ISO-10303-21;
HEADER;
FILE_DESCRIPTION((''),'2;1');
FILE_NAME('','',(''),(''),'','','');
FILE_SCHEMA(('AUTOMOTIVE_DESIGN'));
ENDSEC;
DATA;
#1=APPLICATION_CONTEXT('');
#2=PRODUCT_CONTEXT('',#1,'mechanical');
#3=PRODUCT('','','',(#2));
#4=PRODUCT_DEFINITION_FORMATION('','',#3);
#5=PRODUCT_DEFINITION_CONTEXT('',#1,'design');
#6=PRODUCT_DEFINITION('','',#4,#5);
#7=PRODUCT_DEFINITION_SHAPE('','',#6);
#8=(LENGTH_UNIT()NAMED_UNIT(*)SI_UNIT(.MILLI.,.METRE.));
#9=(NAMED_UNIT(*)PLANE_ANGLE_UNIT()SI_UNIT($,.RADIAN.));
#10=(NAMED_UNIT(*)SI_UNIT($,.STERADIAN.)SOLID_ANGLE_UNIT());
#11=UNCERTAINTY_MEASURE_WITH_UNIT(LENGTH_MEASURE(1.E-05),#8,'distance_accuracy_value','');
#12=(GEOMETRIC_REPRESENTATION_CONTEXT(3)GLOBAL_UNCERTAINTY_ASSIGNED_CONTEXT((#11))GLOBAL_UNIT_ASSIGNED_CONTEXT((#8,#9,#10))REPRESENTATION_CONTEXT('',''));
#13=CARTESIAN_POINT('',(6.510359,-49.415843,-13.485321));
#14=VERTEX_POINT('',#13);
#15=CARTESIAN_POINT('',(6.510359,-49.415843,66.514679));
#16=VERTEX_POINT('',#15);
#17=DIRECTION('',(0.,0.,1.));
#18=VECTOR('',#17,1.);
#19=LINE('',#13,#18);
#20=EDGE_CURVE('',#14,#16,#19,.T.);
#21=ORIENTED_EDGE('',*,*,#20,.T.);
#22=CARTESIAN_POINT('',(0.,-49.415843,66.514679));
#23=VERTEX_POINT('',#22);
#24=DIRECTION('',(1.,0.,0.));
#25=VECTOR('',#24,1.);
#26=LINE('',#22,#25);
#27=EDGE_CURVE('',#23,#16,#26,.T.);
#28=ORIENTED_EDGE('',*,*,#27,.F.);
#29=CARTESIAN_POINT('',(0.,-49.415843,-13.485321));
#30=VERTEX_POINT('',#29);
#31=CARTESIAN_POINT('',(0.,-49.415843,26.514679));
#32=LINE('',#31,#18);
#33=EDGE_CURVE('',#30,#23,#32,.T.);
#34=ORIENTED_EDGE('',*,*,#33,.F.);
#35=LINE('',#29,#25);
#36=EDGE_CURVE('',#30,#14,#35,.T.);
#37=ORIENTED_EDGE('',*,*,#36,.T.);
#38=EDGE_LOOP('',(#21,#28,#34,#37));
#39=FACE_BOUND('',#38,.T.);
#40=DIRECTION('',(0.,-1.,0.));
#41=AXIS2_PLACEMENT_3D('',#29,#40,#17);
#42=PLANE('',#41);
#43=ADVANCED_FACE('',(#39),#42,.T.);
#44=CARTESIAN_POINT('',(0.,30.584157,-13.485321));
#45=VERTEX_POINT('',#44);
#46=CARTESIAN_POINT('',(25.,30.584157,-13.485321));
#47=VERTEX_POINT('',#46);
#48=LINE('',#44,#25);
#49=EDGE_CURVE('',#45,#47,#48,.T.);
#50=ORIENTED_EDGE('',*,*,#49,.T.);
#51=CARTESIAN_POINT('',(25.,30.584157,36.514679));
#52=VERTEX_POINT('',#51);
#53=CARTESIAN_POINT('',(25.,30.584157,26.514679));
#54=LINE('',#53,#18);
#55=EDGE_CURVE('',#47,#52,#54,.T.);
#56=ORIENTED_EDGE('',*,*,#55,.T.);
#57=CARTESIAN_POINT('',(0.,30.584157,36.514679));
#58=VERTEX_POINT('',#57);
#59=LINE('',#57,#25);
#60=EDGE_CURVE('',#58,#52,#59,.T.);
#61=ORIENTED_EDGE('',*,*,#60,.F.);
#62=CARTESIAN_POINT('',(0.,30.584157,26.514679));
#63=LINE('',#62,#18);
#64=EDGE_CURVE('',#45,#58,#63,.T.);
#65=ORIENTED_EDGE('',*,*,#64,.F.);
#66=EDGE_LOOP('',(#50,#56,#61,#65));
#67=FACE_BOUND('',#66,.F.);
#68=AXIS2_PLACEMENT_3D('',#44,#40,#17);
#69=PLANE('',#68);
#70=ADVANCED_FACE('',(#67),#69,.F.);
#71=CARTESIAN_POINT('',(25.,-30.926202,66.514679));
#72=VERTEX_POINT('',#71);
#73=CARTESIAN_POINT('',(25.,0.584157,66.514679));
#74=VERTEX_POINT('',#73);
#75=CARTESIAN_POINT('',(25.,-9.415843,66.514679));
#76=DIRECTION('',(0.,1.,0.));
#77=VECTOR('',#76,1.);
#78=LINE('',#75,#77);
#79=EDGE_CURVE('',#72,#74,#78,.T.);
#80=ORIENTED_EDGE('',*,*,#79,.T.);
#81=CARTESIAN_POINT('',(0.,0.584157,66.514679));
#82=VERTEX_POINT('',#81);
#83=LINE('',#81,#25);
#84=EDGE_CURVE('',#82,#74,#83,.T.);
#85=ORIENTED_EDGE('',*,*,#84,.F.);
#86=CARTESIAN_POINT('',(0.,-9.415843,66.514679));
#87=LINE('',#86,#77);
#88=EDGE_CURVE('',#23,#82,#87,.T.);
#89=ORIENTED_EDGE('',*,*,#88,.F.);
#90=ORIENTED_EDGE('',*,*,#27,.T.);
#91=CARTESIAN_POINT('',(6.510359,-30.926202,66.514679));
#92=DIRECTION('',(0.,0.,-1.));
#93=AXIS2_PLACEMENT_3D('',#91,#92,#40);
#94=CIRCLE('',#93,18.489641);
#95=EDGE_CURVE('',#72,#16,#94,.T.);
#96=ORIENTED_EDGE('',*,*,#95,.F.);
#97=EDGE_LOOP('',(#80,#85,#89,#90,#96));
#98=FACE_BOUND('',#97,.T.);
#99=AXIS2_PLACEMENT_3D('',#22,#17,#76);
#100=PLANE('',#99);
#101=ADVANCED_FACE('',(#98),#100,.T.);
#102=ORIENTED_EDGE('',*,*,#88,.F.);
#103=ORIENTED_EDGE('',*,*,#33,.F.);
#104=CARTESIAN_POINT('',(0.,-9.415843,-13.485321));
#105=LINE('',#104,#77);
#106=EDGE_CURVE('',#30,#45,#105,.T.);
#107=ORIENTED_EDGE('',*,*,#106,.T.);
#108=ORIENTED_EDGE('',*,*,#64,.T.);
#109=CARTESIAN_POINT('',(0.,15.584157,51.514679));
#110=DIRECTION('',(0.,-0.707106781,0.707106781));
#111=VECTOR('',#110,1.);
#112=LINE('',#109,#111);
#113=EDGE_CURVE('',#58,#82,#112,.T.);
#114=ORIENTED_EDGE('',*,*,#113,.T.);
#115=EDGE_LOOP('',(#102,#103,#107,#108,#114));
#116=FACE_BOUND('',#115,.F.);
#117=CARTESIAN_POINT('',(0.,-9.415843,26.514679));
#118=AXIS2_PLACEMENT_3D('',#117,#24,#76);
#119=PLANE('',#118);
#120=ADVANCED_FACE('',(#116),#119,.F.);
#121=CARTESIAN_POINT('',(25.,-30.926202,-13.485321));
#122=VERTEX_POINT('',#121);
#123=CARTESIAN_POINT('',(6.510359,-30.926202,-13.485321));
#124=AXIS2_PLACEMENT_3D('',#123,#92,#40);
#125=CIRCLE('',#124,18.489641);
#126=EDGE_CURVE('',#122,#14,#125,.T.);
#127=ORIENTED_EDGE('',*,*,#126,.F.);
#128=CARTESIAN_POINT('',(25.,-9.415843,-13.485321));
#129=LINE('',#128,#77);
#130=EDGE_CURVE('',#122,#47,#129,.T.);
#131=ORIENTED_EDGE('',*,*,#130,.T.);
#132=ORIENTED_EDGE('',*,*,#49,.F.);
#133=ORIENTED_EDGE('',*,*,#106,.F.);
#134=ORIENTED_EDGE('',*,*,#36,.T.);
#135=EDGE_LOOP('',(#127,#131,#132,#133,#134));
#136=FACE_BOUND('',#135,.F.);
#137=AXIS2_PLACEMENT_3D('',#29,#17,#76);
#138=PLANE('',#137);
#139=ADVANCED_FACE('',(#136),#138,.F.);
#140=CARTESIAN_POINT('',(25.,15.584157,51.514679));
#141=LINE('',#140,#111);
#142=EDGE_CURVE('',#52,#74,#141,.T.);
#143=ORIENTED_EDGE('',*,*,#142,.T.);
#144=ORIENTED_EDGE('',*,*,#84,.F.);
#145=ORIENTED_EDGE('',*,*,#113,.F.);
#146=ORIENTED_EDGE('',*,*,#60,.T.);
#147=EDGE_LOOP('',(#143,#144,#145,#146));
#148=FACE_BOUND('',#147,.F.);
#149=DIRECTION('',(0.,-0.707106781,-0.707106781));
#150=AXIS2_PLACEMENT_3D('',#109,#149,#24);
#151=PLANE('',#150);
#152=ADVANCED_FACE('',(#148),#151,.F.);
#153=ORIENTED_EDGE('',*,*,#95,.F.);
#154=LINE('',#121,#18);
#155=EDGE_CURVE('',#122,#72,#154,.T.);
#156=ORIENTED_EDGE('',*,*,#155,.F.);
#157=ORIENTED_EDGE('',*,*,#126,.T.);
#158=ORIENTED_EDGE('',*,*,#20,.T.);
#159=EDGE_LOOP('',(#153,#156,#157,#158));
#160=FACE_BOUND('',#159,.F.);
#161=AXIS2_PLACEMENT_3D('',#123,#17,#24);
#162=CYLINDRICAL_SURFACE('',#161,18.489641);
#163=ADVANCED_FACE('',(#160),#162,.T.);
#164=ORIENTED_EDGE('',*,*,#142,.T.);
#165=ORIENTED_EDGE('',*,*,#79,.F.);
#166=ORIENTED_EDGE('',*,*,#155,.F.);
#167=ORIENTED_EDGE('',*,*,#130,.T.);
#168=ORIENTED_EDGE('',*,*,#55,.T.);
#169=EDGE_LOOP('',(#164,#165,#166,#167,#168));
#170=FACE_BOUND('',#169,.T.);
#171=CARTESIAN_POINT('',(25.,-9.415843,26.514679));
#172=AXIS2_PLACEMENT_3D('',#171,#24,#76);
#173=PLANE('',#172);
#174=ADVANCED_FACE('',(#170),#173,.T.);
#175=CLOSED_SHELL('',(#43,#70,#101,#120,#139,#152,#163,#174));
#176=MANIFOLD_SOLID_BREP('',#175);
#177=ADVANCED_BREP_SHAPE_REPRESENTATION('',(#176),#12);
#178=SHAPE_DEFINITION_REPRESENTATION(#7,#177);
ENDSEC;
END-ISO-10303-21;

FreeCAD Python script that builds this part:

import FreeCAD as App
import Part
import Sketcher

V = App.Vector


def edges_at(feature, points):
    """Names of the edges that pass closest to the given points."""
    edges = feature.Shape.Edges
    near = lambda p: min(range(len(edges)), key=lambda i: edges[i].distToShape(Part.Vertex(*p))[0])
    return sorted({f"Edge{near(p) + 1}" for p in points})

doc = App.newDocument("Part")
body = doc.addObject("PartDesign::Body", "Body")

sketch1 = body.newObject("Sketcher::SketchObject", "Sketch")
sketch1.AttachmentSupport = (doc.getObject("YZ_Plane"), [""])
sketch1.MapMode = "FlatFace"
sketch1.addGeometry(Part.LineSegment(V(-49.415843, 66.514679, 0), V(-49.415843, -13.485321, 0)), False)
sketch1.addGeometry(Part.LineSegment(V(-49.415843, -13.485321, 0), V(30.584157, -13.485321, 0)), False)
sketch1.addGeometry(Part.LineSegment(V(30.584157, -13.485321, 0), V(30.584157, 66.514679, 0)), False)
sketch1.addGeometry(Part.LineSegment(V(30.584157, 66.514679, 0), V(-49.415843, 66.514679, 0)), False)
sketch1.addConstraint(Sketcher.Constraint("Coincident", 0, 2, 1, 1))
sketch1.addConstraint(Sketcher.Constraint("Coincident", 1, 2, 2, 1))
sketch1.addConstraint(Sketcher.Constraint("Coincident", 2, 2, 3, 1))
sketch1.addConstraint(Sketcher.Constraint("Coincident", 3, 2, 0, 1))
sketch1.addConstraint(Sketcher.Constraint("Vertical", 0))
sketch1.addConstraint(Sketcher.Constraint("Horizontal", 1))
sketch1.addConstraint(Sketcher.Constraint("Vertical", 2))
sketch1.addConstraint(Sketcher.Constraint("Horizontal", 3))
sketch1.addConstraint(Sketcher.Constraint("Equal", 3, 0))
sketch1.addConstraint(Sketcher.Constraint("DistanceX", 1, 1, 1, 2, 80.0))
sketch1.addConstraint(Sketcher.Constraint("DistanceY", 0, 2, -1, 1, 13.485321))
sketch1.addConstraint(Sketcher.Constraint("DistanceX", 0, 2, -1, 1, 49.415843))
pad1 = body.newObject("PartDesign::Pad", "Pad")
pad1.Profile = sketch1
pad1.Length = 25
doc.recompute()

chamfer = body.newObject("PartDesign::Chamfer", "Chamfer")
chamfer.Base = (pad1, edges_at(pad1, [(12.5, 30.584, 66.515)]))
chamfer.Size = 30
doc.recompute()

fillet = body.newObject("PartDesign::Fillet", "Fillet")
fillet.Base = (chamfer, edges_at(chamfer, [(25, -49.416, 26.515)]))
fillet.Radius = 18.489641

doc.recompute()
